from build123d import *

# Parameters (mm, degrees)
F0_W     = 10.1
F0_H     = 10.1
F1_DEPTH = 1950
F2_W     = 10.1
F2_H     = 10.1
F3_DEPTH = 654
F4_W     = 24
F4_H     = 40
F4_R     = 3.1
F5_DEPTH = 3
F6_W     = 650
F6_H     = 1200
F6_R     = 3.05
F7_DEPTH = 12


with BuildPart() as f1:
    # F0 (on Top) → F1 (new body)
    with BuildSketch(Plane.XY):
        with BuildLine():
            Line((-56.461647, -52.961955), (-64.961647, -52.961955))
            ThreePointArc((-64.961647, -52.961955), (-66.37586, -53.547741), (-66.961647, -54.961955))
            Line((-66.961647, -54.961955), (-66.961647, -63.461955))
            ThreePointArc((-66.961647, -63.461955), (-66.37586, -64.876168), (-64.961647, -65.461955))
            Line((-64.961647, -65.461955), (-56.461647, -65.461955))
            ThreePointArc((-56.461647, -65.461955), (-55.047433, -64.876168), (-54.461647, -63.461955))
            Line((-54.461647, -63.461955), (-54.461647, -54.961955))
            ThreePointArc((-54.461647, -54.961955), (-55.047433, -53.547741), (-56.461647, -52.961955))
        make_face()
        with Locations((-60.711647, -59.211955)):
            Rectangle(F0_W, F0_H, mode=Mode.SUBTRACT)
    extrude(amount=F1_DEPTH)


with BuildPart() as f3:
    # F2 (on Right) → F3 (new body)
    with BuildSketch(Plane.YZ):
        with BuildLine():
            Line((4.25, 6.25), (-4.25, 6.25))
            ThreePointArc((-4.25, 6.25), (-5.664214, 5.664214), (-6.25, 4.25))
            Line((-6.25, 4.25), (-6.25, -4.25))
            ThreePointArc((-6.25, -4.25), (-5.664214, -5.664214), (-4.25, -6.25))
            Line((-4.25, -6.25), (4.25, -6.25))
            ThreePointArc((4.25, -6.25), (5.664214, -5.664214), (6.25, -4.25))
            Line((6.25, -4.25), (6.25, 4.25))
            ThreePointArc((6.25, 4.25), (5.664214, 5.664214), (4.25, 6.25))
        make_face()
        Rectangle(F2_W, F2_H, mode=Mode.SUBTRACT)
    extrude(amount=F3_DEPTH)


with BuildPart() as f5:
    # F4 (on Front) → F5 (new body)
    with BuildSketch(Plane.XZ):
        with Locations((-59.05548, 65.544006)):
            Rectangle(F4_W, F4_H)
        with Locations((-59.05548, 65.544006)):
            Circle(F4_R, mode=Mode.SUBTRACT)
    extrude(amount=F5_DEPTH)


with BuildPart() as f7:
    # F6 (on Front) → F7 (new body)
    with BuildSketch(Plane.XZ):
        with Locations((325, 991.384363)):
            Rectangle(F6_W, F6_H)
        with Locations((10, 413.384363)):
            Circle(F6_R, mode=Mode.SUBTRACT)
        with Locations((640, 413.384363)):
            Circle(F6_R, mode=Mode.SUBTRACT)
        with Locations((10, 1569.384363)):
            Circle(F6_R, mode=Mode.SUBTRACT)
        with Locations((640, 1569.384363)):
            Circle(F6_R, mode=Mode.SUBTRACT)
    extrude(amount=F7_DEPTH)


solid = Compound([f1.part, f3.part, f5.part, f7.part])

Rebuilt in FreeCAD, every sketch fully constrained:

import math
import FreeCAD as App
import Part
import Sketcher
Q = App.Units.Quantity


def add_polygon(sketch, points):
    """Adds a closed chain of lines whose ends are joined by coincident constraints."""
    first, n = sketch.GeometryCount, len(points)
    for a, b in zip(points, points[1:] + points[:1]):
        sketch.addGeometry(Part.LineSegment(App.Vector(*a, 0), App.Vector(*b, 0)), False)
    for i in range(n):
        sketch.addConstraint(Sketcher.Constraint("Coincident", first + i, 2, first + (i + 1) % n, 1))

doc = App.newDocument("Part")
body = doc.addObject("PartDesign::Body", "Body")

# Sketch on XY plane
sketch1 = body.newObject("Sketcher::SketchObject", "Sketch")
sketch1.AttachmentSupport = (doc.getObject("XY_Plane"), [""])
sketch1.MapMode = "FlatFace"
sketch1.addGeometry(Part.LineSegment(App.Vector(-56.5, -53, 0), App.Vector(-65, -53, 0)), False)  # 0
sketch1.addGeometry(Part.ArcOfCircle(Part.Circle(App.Vector(-65, -55, 0), App.Vector(0, 0, 1), 2), math.radians(90), math.radians(180)), False)  # 1
sketch1.addGeometry(Part.LineSegment(App.Vector(-67, -55, 0), App.Vector(-67, -63.5, 0)), False)  # 2
sketch1.addGeometry(Part.ArcOfCircle(Part.Circle(App.Vector(-65, -63.5, 0), App.Vector(0, 0, 1), 2), math.radians(-180), math.radians(-90)), False)  # 3
sketch1.addGeometry(Part.LineSegment(App.Vector(-65, -65.5, 0), App.Vector(-56.5, -65.5, 0)), False)  # 4
sketch1.addGeometry(Part.ArcOfCircle(Part.Circle(App.Vector(-56.5, -63.5, 0), App.Vector(0, 0, 1), 2), math.radians(-90), math.radians(0)), False)  # 5
sketch1.addGeometry(Part.LineSegment(App.Vector(-54.5, -63.5, 0), App.Vector(-54.5, -55, 0)), False)  # 6
sketch1.addGeometry(Part.ArcOfCircle(Part.Circle(App.Vector(-56.5, -55, 0), App.Vector(0, 0, 1), 2), math.radians(0), math.radians(90)), False)  # 7
add_polygon(sketch1, [(-55.7, -64.3), (-65.8, -64.3), (-65.8, -54.2), (-55.7, -54.2)])  # lines 8-11
sketch1.addConstraint(Sketcher.Constraint("Tangent", 0, 2, 1, 1))
sketch1.addConstraint(Sketcher.Constraint("Tangent", 1, 2, 2, 1))
sketch1.addConstraint(Sketcher.Constraint("Tangent", 2, 2, 3, 1))
sketch1.addConstraint(Sketcher.Constraint("Tangent", 3, 2, 4, 1))
sketch1.addConstraint(Sketcher.Constraint("Tangent", 4, 2, 5, 1))
sketch1.addConstraint(Sketcher.Constraint("Tangent", 5, 2, 6, 1))
sketch1.addConstraint(Sketcher.Constraint("Tangent", 6, 2, 7, 1))
sketch1.addConstraint(Sketcher.Constraint("Tangent", 7, 2, 0, 1))
sketch1.addConstraint(Sketcher.Constraint("Horizontal", 0))
sketch1.addConstraint(Sketcher.Constraint("Vertical", 2))
sketch1.addConstraint(Sketcher.Constraint("Horizontal", 4))
sketch1.addConstraint(Sketcher.Constraint("Vertical", 6))
sketch1.addConstraint(Sketcher.Constraint("Horizontal", 8))
sketch1.addConstraint(Sketcher.Constraint("Vertical", 9))
sketch1.addConstraint(Sketcher.Constraint("Horizontal", 10))
sketch1.addConstraint(Sketcher.Constraint("Vertical", 11))
sketch1.addConstraint(Sketcher.Constraint("Equal", 1, 3))
sketch1.addConstraint(Sketcher.Constraint("Equal", 3, 5))
sketch1.addConstraint(Sketcher.Constraint("Equal", 5, 7))
sketch1.addConstraint(Sketcher.Constraint("Equal", 4, 2))
sketch1.addConstraint(Sketcher.Constraint("Equal", 10, 9))
sketch1.addConstraint(Sketcher.Constraint("Radius", 1, Q("2 mm")))
sketch1.addConstraint(Sketcher.Constraint("DistanceX", 0, 2, 0, 1, Q("8.5 mm")))
sketch1.addConstraint(Sketcher.Constraint("DistanceX", 8, 2, 8, 1, Q("10.1 mm")))
sketch1.addConstraint(Sketcher.Constraint("DistanceX", 8, 2, 3, 3, Q("0.800002 mm")))
sketch1.addConstraint(Sketcher.Constraint("DistanceY", 8, 2, 3, 3, Q("0.800002 mm")))
sketch1.addConstraint(Sketcher.Constraint("DistanceX", 1, 3, -1, 1, Q("64.961647 mm")))
sketch1.addConstraint(Sketcher.Constraint("DistanceY", 1, 3, -1, 1, Q("54.961955 mm")))
pad1 = body.newObject("PartDesign::Pad", "Pad")
pad1.Profile = sketch1
pad1.Length = 1950
body2 = doc.addObject("PartDesign::Body", "Body001")

# Sketch on YZ plane
sketch2 = body2.newObject("Sketcher::SketchObject", "Sketch001")
sketch2.AttachmentSupport = (doc.getObject("YZ_Plane001"), [""])
sketch2.MapMode = "FlatFace"
sketch2.addGeometry(Part.LineSegment(App.Vector(4.2, 6.2, 0), App.Vector(-4.2, 6.2, 0)), False)  # 0
sketch2.addGeometry(Part.ArcOfCircle(Part.Circle(App.Vector(-4.3, 4.3, 0), App.Vector(0, 0, 1), 2), math.radians(90), math.radians(180)), False)  # 1
sketch2.addGeometry(Part.LineSegment(App.Vector(-6.2, 4.2, 0), App.Vector(-6.2, -4.2, 0)), False)  # 2
sketch2.addGeometry(Part.ArcOfCircle(Part.Circle(App.Vector(-4.3, -4.3, 0), App.Vector(0, 0, 1), 2), math.radians(180), math.radians(270)), False)  # 3
sketch2.addGeometry(Part.LineSegment(App.Vector(-4.2, -6.2, 0), App.Vector(4.2, -6.2, 0)), False)  # 4
sketch2.addGeometry(Part.ArcOfCircle(Part.Circle(App.Vector(4.3, -4.3, 0), App.Vector(0, 0, 1), 2), math.radians(-90), math.radians(0)), False)  # 5
sketch2.addGeometry(Part.LineSegment(App.Vector(6.2, -4.2, 0), App.Vector(6.2, 4.2, 0)), False)  # 6
sketch2.addGeometry(Part.ArcOfCircle(Part.Circle(App.Vector(4.3, 4.3, 0), App.Vector(0, 0, 1), 2), math.radians(0), math.radians(90)), False)  # 7
add_polygon(sketch2, [(5, -5), (-5, -5), (-5, 5), (5, 5)])  # lines 8-11
sketch2.addConstraint(Sketcher.Constraint("Tangent", 0, 2, 1, 1))
sketch2.addConstraint(Sketcher.Constraint("Tangent", 1, 2, 2, 1))
sketch2.addConstraint(Sketcher.Constraint("Tangent", 2, 2, 3, 1))
sketch2.addConstraint(Sketcher.Constraint("Tangent", 3, 2, 4, 1))
sketch2.addConstraint(Sketcher.Constraint("Tangent", 4, 2, 5, 1))
sketch2.addConstraint(Sketcher.Constraint("Tangent", 5, 2, 6, 1))
sketch2.addConstraint(Sketcher.Constraint("Tangent", 6, 2, 7, 1))
sketch2.addConstraint(Sketcher.Constraint("Tangent", 7, 2, 0, 1))
sketch2.addConstraint(Sketcher.Constraint("Horizontal", 0))
sketch2.addConstraint(Sketcher.Constraint("Vertical", 2))
sketch2.addConstraint(Sketcher.Constraint("Horizontal", 4))
sketch2.addConstraint(Sketcher.Constraint("Vertical", 6))
sketch2.addConstraint(Sketcher.Constraint("Horizontal", 8))
sketch2.addConstraint(Sketcher.Constraint("Vertical", 9))
sketch2.addConstraint(Sketcher.Constraint("Horizontal", 10))
sketch2.addConstraint(Sketcher.Constraint("Vertical", 11))
sketch2.addConstraint(Sketcher.Constraint("Equal", 1, 3))
sketch2.addConstraint(Sketcher.Constraint("Equal", 3, 5))
sketch2.addConstraint(Sketcher.Constraint("Equal", 5, 7))
sketch2.addConstraint(Sketcher.Constraint("Symmetric", 1, 3, 5, 3, -1, 1))
sketch2.addConstraint(Sketcher.Constraint("Symmetric", 8, 2, 10, 2, -1, 1))
sketch2.addConstraint(Sketcher.Constraint("Equal", 4, 2))
sketch2.addConstraint(Sketcher.Constraint("Equal", 10, 9))
sketch2.addConstraint(Sketcher.Constraint("Radius", 1, Q("1.999999 mm")))
sketch2.addConstraint(Sketcher.Constraint("DistanceX", 0, 2, 0, 1, Q("8.5 mm")))
sketch2.addConstraint(Sketcher.Constraint("DistanceX", 8, 2, 8, 1, Q("10.1 mm")))
pad2 = body2.newObject("PartDesign::Pad", "Pad001")
pad2.Profile = sketch2
pad2.Length = 654
body3 = doc.addObject("PartDesign::Body", "Body002")

# Sketch on XZ plane
sketch3 = body3.newObject("Sketcher::SketchObject", "Sketch002")
sketch3.AttachmentSupport = (doc.getObject("XZ_Plane002"), [""])
sketch3.MapMode = "FlatFace"
add_polygon(sketch3, [(-71.1, 85.5), (-71.1, 45.5), (-47.1, 45.5), (-47.1, 85.5)])  # lines 0-3
sketch3.addGeometry(Part.Circle(App.Vector(-59.1, 65.5, 0), App.Vector(0, 0, 1), 3.1), False)  # 4
sketch3.addConstraint(Sketcher.Constraint("Vertical", 0))
sketch3.addConstraint(Sketcher.Constraint("Horizontal", 1))
sketch3.addConstraint(Sketcher.Constraint("Vertical", 2))
sketch3.addConstraint(Sketcher.Constraint("Horizontal", 3))
sketch3.addConstraint(Sketcher.Constraint("Diameter", 4, Q("6.2 mm")))
sketch3.addConstraint(Sketcher.Constraint("DistanceX", 1, 1, 1, 2, Q("24 mm")))
sketch3.addConstraint(Sketcher.Constraint("DistanceY", 0, 2, 0, 1, Q("40 mm")))
sketch3.addConstraint(Sketcher.Constraint("DistanceX", 0, 2, 4, 3, Q("12 mm")))
sketch3.addConstraint(Sketcher.Constraint("DistanceY", 0, 2, 4, 3, Q("20 mm")))
sketch3.addConstraint(Sketcher.Constraint("DistanceX", 4, 3, -1, 1, Q("59.05548 mm")))
sketch3.addConstraint(Sketcher.Constraint("DistanceY", -1, 1, 4, 3, Q("65.544006 mm")))
pad3 = body3.newObject("PartDesign::Pad", "Pad002")
pad3.Profile = sketch3
pad3.Length = 3
body4 = doc.addObject("PartDesign::Body", "Body003")

# Sketch on XZ plane
sketch4 = body4.newObject("Sketcher::SketchObject", "Sketch003")
sketch4.AttachmentSupport = (doc.getObject("XZ_Plane003"), [""])
sketch4.MapMode = "FlatFace"
add_polygon(sketch4, [(0, 1591.4), (0, 391.4), (650, 391.4), (650, 1591.4)])  # lines 0-3
sketch4.addGeometry(Part.Circle(App.Vector(10, 413.4, 0), App.Vector(0, 0, 1), 3), False)  # 4
sketch4.addGeometry(Part.Circle(App.Vector(640, 413.4, 0), App.Vector(0, 0, 1), 3), False)  # 5
sketch4.addGeometry(Part.Circle(App.Vector(10, 1569.4, 0), App.Vector(0, 0, 1), 3), False)  # 6
sketch4.addGeometry(Part.Circle(App.Vector(640, 1569.4, 0), App.Vector(0, 0, 1), 3), False)  # 7
sketch4.addConstraint(Sketcher.Constraint("Vertical", 0))
sketch4.addConstraint(Sketcher.Constraint("Horizontal", 1))
sketch4.addConstraint(Sketcher.Constraint("Vertical", 2))
sketch4.addConstraint(Sketcher.Constraint("Horizontal", 3))
sketch4.addConstraint(Sketcher.Constraint("Equal", 4, 5))
sketch4.addConstraint(Sketcher.Constraint("Equal", 5, 6))
sketch4.addConstraint(Sketcher.Constraint("Equal", 6, 7))
sketch4.addConstraint(Sketcher.Constraint("PointOnObject", 0, 2, -2))
sketch4.addConstraint(Sketcher.Constraint("Horizontal", 4, 3, 5, 3))
sketch4.addConstraint(Sketcher.Constraint("Horizontal", 6, 3, 7, 3))
sketch4.addConstraint(Sketcher.Constraint("Vertical", 4, 3, 6, 3))
sketch4.addConstraint(Sketcher.Constraint("Vertical", 5, 3, 7, 3))
sketch4.addConstraint(Sketcher.Constraint("Diameter", 4, Q("6.1 mm")))
sketch4.addConstraint(Sketcher.Constraint("DistanceX", 1, 1, 1, 2, Q("650 mm")))
sketch4.addConstraint(Sketcher.Constraint("DistanceY", 0, 2, 0, 1, Q("1200 mm")))
sketch4.addConstraint(Sketcher.Constraint("DistanceX", -1, 1, 4, 3, Q("10 mm")))
sketch4.addConstraint(Sketcher.Constraint("DistanceX", -1, 1, 5, 3, Q("640 mm")))
sketch4.addConstraint(Sketcher.Constraint("DistanceY", 4, 3, 6, 3, Q("1156 mm")))
sketch4.addConstraint(Sketcher.Constraint("DistanceY", 0, 2, 4, 3, Q("22 mm")))
sketch4.addConstraint(Sketcher.Constraint("DistanceY", -1, 1, 4, 3, Q("413.384363 mm")))
pad4 = body4.newObject("PartDesign::Pad", "Pad003")
pad4.Profile = sketch4
pad4.Length = 12

doc.recompute()
